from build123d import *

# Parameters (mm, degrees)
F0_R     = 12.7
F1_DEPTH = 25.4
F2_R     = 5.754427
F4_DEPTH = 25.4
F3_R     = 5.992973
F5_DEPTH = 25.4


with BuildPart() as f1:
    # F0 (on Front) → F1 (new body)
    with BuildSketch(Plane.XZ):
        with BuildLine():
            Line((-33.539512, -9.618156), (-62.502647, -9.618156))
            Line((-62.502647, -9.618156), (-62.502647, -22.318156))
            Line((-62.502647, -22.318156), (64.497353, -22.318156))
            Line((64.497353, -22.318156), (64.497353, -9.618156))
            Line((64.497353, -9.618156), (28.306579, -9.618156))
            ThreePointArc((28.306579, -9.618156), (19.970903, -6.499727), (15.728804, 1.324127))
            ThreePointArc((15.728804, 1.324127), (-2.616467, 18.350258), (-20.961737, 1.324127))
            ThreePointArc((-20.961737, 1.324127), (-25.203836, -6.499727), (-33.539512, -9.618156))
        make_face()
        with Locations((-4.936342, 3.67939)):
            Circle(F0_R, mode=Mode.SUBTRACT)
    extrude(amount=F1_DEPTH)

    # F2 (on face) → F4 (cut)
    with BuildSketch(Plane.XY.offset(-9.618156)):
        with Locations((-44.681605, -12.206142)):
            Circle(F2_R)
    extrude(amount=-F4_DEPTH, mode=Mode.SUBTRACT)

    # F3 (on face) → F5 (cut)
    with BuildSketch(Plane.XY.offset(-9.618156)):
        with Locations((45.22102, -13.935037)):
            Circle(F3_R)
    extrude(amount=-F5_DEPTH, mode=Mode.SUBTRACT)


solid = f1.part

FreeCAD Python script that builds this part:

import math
import FreeCAD as App
import Part
import Sketcher
Q = App.Units.Quantity

doc = App.newDocument("Part")
body = doc.addObject("PartDesign::Body", "Body")

# Sketch on XZ plane
sketch1 = body.newObject("Sketcher::SketchObject", "Sketch")
sketch1.AttachmentSupport = (doc.getObject("XZ_Plane"), [""])
sketch1.MapMode = "FlatFace"
sketch1.addGeometry([
    Part.LineSegment(App.Vector(-34, -10, 0), App.Vector(-63, -10, 0)),  # 0
    Part.LineSegment(App.Vector(-63, -10, 0), App.Vector(-63, -22, 0)),  # 1
    Part.LineSegment(App.Vector(-63, -22, 0), App.Vector(64, -22, 0)),  # 2
    Part.LineSegment(App.Vector(64, -22, 0), App.Vector(64, -10, 0)),  # 3
    Part.LineSegment(App.Vector(64, -10, 0), App.Vector(28, -10, 0)),  # 4
    Part.ArcOfCircle(Part.Circle(App.Vector(28, 3, 0), App.Vector(0, 0, 1), 13), math.radians(-172), math.radians(-90)),  # 5
    Part.ArcOfCircle(Part.Circle(App.Vector(-3, 0, 0), App.Vector(0, 0, 1), 18), math.radians(4), math.radians(176)),  # 6
    Part.ArcOfCircle(Part.Circle(App.Vector(-34, 3, 0), App.Vector(0, 0, 1), 13), math.radians(-90), math.radians(-8)),  # 7
    Part.Circle(App.Vector(-5, 4, 0), App.Vector(0, 0, 1), 13),  # 8
], False)
sketch1.addConstraint([
    Sketcher.Constraint("Coincident", 0, 2, 1, 1),
    Sketcher.Constraint("Coincident", 1, 2, 2, 1),
    Sketcher.Constraint("Coincident", 2, 2, 3, 1),
    Sketcher.Constraint("Coincident", 3, 2, 4, 1),
    Sketcher.Constraint("Tangent", 4, 2, 5, 2),
    Sketcher.Constraint("Coincident", 5, 1, 6, 1),
    Sketcher.Constraint("Coincident", 6, 2, 7, 2),
    Sketcher.Constraint("Tangent", 7, 1, 0, 1),
    Sketcher.Constraint("Horizontal", 0),
    Sketcher.Constraint("Vertical", 1),
    Sketcher.Constraint("Horizontal", 2),
    Sketcher.Constraint("Vertical", 3),
    Sketcher.Constraint("Horizontal", 4),
    Sketcher.Constraint("Equal", 5, 7),
    Sketcher.Constraint("Equal", 7, 8),
    Sketcher.Constraint("Horizontal", 5, 3, 7, 3),
    Sketcher.Constraint("Horizontal", 5, 1, 6, 2),
    Sketcher.Constraint("Diameter", 8, Q("1 in")),
    Sketcher.Constraint("DistanceX", 2, 1, 2, 2, Q("5 in")),
    Sketcher.Constraint("DistanceY", 1, 2, 1, 1, Q("0.5 in")),
    Sketcher.Constraint("Radius", 6, Q("18.396372 mm")),
    Sketcher.Constraint("DistanceX", 0, 2, 0, 1, Q("28.963135 mm")),
    Sketcher.Constraint("DistanceX", 4, 2, 4, 1, Q("36.190774 mm")),
    Sketcher.Constraint("DistanceX", -1, 1, 5, 3, Q("28.306579 mm")),
    Sketcher.Constraint("DistanceX", 8, 3, -1, 1, Q("4.936342 mm")),
    Sketcher.Constraint("DistanceY", -1, 1, 8, 3, Q("3.67939 mm")),
    Sketcher.Constraint("DistanceY", 0, 2, 6, 3, Q("9.572042 mm")),
    Sketcher.Constraint("DistanceY", -1, 1, 5, 3, Q("3.081844 mm")),
])
pad1 = body.newObject("PartDesign::Pad", "Pad")
pad1.Profile = sketch1
pad1.Length = Q("1 in")

# Sketch on XY plane
sketch2 = body.newObject("Sketcher::SketchObject", "Sketch001")
sketch2.AttachmentSupport = (doc.getObject("XY_Plane"), [""])
sketch2.MapMode = "FlatFace"
sketch2.AttachmentOffset = App.Placement(App.Vector(0, 0, -9.618156), App.Rotation())
sketch2.addGeometry(Part.Circle(App.Vector(-45, -12, 0), App.Vector(0, 0, 1), 6), False)
sketch2.addConstraint([
    Sketcher.Constraint("Diameter", 0, Q("11.508854 mm")),
    Sketcher.Constraint("DistanceX", 0, 3, -1, 1, Q("44.681605 mm")),
    Sketcher.Constraint("DistanceY", 0, 3, -1, 1, Q("12.206142 mm")),
])
pocket1 = body.newObject("PartDesign::Pocket", "Pocket")
pocket1.Profile = sketch2
pocket1.Length = Q("1 in")

# Sketch on XY plane
sketch3 = body.newObject("Sketcher::SketchObject", "Sketch002")
sketch3.AttachmentSupport = (doc.getObject("XY_Plane"), [""])
sketch3.MapMode = "FlatFace"
sketch3.AttachmentOffset = App.Placement(App.Vector(0, 0, -9.618156), App.Rotation())
sketch3.addGeometry(Part.Circle(App.Vector(45, -14, 0), App.Vector(0, 0, 1), 6), False)
sketch3.addConstraint([
    Sketcher.Constraint("Diameter", 0, Q("11.985946 mm")),
    Sketcher.Constraint("DistanceX", -1, 1, 0, 3, Q("45.22102 mm")),
    Sketcher.Constraint("DistanceY", 0, 3, -1, 1, Q("13.935037 mm")),
])
pocket2 = body.newObject("PartDesign::Pocket", "Pocket001")
pocket2.Profile = sketch3
pocket2.Length = Q("1 in")

doc.recompute()
